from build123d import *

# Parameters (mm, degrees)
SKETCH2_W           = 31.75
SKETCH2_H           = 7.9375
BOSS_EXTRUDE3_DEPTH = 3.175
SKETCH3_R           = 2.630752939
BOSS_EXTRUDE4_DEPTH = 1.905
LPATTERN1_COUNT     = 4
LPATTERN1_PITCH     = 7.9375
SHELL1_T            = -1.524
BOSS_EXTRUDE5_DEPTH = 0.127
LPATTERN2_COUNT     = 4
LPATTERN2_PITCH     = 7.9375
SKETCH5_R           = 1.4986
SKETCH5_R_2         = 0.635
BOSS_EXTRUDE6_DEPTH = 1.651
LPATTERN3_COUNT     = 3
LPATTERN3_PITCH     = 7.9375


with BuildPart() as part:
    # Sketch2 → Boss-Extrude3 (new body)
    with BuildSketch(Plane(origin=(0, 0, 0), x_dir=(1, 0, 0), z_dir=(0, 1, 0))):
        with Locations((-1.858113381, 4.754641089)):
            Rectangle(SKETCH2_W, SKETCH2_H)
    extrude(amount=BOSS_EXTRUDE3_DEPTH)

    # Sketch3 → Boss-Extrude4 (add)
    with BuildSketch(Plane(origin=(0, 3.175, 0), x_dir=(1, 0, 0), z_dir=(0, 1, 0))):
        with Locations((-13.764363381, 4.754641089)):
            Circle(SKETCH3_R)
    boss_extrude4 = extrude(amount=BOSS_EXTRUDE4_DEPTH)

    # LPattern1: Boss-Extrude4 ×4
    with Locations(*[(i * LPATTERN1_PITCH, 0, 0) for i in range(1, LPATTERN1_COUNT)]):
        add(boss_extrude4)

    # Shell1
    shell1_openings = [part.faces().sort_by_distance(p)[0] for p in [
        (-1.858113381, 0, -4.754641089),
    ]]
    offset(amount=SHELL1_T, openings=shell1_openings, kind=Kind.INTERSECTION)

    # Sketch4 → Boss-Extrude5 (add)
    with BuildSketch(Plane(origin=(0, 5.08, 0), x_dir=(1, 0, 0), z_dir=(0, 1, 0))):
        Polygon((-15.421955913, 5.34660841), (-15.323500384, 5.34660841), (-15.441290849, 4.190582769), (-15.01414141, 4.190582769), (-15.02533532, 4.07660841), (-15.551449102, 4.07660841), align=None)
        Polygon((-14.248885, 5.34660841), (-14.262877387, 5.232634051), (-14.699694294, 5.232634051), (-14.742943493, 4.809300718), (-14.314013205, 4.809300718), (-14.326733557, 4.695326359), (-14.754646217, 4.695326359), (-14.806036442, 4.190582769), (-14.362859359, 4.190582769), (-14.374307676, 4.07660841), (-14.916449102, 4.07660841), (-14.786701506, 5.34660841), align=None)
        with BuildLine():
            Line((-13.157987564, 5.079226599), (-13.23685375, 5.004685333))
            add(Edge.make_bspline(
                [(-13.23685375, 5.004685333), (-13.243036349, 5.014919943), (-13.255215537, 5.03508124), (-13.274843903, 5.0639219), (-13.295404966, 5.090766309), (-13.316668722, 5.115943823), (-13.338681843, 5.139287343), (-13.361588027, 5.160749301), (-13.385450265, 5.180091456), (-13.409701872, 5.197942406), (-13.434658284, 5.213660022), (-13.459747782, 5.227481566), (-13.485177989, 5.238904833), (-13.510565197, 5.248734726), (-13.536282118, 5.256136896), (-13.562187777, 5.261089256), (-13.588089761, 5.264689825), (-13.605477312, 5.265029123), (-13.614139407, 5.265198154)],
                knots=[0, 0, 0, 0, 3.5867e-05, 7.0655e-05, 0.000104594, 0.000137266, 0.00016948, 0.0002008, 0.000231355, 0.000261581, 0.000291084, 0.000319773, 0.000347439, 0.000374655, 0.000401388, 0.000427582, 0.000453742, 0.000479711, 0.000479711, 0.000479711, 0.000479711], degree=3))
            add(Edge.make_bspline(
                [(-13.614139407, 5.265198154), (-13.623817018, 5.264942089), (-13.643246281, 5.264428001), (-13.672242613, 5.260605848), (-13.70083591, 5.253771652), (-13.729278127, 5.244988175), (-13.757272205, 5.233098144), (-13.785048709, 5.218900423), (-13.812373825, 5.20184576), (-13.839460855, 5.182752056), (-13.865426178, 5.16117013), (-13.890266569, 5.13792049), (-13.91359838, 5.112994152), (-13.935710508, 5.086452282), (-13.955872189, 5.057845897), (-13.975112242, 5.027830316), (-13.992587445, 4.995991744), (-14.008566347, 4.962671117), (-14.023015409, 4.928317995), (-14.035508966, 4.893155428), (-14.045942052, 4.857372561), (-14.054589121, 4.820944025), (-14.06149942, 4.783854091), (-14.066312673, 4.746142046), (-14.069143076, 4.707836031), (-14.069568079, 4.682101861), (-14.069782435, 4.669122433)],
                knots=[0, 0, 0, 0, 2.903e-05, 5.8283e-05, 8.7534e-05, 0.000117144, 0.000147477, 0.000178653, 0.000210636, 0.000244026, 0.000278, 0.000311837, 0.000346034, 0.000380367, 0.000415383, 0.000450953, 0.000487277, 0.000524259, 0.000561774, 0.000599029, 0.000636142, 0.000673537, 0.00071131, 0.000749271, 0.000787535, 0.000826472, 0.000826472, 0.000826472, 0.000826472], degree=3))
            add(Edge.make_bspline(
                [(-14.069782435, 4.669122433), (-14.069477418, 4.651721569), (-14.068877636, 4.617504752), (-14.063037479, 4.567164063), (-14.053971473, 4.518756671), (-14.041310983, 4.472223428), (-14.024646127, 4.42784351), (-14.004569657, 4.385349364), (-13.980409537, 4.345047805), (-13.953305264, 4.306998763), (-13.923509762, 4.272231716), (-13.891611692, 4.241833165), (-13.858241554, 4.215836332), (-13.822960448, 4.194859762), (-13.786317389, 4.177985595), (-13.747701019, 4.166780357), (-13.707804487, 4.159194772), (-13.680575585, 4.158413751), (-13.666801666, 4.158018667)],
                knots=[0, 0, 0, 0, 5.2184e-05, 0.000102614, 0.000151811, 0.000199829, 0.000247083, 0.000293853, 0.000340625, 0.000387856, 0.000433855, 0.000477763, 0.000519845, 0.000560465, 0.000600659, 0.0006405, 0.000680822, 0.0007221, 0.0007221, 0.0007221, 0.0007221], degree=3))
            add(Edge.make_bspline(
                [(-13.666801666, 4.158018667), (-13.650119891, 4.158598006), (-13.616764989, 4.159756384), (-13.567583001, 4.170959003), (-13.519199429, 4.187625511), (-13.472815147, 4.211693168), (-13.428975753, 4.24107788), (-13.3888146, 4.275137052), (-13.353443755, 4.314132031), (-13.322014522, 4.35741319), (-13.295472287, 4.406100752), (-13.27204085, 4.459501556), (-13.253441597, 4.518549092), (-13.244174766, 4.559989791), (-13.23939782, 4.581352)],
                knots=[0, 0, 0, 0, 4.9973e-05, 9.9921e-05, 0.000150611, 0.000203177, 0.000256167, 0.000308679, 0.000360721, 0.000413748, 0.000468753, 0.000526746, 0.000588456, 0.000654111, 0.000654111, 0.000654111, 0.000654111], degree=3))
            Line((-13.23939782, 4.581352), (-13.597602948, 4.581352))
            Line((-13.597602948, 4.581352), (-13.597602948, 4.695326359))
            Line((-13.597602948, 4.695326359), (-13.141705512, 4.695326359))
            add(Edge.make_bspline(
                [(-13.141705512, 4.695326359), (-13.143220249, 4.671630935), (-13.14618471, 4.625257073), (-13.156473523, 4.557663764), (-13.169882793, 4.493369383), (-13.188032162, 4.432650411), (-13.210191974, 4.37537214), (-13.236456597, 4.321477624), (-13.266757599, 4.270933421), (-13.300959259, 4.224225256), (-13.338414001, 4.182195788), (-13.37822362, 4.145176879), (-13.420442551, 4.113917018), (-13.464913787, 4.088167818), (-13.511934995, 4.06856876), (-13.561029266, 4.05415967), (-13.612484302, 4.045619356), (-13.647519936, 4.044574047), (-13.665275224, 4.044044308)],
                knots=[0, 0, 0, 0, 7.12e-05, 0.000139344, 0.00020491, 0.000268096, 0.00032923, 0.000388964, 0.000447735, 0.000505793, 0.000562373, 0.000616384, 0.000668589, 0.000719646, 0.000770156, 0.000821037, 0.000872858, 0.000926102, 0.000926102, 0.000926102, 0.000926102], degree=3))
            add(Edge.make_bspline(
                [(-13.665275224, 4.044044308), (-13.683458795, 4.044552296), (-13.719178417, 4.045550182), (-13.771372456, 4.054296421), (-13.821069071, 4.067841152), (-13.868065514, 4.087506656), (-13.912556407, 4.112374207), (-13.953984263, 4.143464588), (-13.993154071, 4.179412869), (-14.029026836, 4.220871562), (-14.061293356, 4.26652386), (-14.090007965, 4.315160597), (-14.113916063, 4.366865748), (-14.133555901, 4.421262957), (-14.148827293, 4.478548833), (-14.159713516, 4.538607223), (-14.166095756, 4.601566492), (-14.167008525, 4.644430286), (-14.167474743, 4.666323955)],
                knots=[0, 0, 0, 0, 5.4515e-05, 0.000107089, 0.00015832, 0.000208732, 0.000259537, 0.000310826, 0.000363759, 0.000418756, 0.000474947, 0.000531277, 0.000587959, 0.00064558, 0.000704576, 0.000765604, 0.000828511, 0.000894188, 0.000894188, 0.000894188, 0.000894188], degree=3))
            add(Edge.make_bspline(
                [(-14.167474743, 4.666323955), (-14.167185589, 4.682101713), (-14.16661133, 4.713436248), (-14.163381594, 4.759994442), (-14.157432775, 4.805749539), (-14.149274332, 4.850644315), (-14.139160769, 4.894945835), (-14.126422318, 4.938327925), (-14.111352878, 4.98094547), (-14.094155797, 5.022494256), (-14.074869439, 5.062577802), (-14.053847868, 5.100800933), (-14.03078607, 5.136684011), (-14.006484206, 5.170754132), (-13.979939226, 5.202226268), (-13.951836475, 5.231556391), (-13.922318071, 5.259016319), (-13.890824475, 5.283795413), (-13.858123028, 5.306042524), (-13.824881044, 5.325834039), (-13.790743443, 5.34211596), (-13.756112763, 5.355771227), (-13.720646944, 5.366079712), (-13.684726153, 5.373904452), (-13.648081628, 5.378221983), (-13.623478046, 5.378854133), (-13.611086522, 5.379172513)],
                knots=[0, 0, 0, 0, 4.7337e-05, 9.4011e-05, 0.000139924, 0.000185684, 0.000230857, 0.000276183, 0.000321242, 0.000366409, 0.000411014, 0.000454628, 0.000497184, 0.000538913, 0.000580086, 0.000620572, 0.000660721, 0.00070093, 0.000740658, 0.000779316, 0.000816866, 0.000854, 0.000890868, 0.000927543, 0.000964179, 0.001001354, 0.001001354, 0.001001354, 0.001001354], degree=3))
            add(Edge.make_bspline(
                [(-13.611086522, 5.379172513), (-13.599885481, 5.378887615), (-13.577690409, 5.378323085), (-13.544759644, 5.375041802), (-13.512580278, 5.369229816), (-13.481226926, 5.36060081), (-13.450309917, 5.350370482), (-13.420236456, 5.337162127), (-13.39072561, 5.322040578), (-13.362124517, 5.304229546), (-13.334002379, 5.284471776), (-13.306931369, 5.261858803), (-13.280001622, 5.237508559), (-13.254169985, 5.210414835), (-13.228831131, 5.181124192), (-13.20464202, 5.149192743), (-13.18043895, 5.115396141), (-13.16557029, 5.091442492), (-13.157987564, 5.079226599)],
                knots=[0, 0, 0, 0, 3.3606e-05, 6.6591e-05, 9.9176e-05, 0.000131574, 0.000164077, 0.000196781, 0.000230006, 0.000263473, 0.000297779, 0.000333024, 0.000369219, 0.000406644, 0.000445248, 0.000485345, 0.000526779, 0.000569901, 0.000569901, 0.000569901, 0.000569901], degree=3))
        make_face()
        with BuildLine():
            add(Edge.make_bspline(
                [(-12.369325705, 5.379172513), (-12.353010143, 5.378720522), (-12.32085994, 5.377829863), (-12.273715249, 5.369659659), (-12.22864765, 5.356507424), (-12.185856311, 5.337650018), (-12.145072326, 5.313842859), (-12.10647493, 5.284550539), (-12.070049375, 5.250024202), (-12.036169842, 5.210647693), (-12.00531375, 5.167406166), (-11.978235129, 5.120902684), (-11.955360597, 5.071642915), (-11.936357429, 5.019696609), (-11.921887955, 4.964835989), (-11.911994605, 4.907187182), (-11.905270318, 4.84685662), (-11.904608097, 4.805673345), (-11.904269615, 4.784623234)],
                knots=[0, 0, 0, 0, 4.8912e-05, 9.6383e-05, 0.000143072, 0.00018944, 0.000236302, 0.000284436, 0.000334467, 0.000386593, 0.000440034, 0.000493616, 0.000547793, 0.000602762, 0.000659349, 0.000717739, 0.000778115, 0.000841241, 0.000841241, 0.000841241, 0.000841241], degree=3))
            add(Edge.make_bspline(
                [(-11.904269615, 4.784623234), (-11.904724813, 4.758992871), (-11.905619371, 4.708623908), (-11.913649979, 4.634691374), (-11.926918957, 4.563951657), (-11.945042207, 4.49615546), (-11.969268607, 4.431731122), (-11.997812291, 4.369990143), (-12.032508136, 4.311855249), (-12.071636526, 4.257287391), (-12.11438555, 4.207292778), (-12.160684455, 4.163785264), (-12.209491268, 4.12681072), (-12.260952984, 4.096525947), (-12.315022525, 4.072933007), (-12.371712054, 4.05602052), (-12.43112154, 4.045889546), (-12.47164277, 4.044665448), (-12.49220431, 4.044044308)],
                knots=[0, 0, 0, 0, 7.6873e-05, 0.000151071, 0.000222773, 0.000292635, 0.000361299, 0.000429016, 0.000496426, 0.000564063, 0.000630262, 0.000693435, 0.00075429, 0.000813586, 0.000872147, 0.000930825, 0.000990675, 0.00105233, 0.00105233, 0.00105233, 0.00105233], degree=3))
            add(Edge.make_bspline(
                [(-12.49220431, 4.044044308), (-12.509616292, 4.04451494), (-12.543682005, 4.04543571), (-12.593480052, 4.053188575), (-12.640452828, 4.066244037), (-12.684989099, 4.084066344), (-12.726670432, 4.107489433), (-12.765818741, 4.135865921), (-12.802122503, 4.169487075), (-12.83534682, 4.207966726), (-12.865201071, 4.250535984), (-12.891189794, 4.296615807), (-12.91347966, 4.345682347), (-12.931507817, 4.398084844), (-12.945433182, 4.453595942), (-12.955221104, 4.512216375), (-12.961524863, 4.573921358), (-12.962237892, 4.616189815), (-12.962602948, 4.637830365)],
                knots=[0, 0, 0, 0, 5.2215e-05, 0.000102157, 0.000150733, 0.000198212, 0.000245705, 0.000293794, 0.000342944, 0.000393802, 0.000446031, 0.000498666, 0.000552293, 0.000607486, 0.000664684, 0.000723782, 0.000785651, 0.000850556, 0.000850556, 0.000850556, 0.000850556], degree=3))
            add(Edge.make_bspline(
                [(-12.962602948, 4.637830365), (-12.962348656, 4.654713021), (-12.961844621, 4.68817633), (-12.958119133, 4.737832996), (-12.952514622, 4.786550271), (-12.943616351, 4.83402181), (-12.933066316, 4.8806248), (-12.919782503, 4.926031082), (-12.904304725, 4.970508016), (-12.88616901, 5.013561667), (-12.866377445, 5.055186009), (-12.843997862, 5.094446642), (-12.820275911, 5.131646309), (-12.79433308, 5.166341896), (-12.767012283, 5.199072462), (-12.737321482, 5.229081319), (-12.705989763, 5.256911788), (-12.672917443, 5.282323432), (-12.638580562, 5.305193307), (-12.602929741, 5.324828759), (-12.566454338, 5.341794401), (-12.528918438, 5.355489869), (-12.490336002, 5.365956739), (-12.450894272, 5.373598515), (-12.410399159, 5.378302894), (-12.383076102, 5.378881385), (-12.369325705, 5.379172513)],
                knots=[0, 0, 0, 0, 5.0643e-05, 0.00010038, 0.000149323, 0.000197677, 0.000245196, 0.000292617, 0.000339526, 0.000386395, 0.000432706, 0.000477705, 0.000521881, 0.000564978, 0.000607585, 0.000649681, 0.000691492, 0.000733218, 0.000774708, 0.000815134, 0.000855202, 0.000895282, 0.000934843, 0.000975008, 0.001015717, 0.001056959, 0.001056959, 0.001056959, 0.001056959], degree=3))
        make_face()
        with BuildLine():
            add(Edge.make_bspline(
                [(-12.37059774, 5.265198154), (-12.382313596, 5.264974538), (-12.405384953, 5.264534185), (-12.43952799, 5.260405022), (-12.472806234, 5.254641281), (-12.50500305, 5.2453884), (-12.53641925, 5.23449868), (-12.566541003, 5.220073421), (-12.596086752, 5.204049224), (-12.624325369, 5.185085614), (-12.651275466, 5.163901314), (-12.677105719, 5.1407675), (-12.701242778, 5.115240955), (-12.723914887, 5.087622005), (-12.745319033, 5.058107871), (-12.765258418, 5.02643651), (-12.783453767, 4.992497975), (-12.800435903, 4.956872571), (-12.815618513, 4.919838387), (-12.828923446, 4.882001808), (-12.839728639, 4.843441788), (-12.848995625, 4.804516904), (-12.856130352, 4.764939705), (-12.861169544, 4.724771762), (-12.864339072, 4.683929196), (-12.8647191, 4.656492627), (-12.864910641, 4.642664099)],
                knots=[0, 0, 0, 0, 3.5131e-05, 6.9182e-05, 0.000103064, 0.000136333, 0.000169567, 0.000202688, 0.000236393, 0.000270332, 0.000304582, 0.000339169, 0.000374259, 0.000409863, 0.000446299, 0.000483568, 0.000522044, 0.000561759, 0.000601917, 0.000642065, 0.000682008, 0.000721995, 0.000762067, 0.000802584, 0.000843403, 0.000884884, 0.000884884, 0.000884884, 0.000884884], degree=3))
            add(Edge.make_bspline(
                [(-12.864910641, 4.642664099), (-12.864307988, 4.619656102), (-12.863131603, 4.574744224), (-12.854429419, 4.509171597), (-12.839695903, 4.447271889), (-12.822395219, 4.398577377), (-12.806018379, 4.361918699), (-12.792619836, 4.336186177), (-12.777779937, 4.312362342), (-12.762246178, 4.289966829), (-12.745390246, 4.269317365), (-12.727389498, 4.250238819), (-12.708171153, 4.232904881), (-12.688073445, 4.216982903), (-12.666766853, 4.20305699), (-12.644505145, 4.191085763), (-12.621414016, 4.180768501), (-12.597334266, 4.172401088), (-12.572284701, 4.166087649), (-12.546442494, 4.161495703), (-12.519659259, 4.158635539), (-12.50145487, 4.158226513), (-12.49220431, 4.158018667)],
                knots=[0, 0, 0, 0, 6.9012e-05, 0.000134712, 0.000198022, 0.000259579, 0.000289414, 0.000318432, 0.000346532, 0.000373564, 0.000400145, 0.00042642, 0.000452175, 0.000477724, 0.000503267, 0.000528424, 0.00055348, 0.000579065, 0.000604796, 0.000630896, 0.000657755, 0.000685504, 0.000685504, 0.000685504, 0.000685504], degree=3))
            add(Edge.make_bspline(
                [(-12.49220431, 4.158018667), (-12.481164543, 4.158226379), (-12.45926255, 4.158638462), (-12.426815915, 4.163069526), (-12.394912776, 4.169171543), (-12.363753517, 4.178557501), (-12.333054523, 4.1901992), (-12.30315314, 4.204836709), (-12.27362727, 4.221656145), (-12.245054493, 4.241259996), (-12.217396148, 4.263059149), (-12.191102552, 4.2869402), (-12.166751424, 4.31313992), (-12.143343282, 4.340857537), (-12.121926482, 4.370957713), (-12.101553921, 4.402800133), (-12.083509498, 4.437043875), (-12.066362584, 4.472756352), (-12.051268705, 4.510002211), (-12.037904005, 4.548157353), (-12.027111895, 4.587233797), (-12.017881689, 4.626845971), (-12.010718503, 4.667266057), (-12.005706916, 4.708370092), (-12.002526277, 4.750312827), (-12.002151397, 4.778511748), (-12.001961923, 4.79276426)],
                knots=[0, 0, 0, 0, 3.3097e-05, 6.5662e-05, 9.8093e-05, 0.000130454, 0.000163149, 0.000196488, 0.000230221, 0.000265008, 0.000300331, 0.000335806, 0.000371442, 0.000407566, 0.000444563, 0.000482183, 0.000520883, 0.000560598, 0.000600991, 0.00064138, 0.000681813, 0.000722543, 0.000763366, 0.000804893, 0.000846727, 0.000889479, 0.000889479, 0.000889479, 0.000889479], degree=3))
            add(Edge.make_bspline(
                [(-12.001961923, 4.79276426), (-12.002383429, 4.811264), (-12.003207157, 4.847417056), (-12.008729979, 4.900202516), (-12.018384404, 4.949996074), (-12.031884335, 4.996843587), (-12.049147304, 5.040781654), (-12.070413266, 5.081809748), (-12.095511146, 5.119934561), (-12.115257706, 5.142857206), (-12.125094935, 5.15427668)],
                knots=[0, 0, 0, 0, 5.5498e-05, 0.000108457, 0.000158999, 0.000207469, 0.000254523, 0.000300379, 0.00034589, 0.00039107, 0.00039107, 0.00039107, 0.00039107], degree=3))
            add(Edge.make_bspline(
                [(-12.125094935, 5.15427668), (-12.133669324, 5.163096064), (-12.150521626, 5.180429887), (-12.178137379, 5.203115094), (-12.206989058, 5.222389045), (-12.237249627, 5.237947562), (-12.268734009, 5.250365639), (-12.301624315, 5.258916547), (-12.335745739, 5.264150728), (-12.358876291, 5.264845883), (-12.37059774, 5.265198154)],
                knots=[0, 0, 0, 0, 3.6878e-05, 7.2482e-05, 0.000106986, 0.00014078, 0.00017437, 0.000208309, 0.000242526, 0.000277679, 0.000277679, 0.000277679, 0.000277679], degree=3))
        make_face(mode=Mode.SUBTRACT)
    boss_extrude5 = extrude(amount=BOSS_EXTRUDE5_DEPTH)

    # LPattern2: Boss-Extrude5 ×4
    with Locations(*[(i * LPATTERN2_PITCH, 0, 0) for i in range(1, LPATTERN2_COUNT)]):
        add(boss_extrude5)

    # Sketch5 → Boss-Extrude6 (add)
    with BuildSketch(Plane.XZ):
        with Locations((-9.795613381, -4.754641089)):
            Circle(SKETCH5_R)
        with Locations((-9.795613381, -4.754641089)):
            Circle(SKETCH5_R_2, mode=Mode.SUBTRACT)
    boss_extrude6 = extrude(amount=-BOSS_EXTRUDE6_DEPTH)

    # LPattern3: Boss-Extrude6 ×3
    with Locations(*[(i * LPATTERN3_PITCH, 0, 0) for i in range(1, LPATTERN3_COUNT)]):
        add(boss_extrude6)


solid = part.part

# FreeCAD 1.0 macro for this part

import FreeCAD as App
import Part
import Sketcher
Q = App.Units.Quantity


def faces_at(feature, points):
    """Names of the faces that lie closest to the given points."""
    faces = feature.Shape.Faces
    near = lambda p: min(range(len(faces)), key=lambda i: faces[i].distToShape(Part.Vertex(*p))[0])
    return sorted({f"Face{near(p) + 1}" for p in points})


def add_polygon(sketch, points):
    """Adds a closed chain of lines whose ends are joined by coincident constraints."""
    first, n = sketch.GeometryCount, len(points)
    for a, b in zip(points, points[1:] + points[:1]):
        sketch.addGeometry(Part.LineSegment(App.Vector(*a, 0), App.Vector(*b, 0)), False)
    for i in range(n):
        sketch.addConstraint(Sketcher.Constraint("Coincident", first + i, 2, first + (i + 1) % n, 1))

doc = App.newDocument("Part")
body = doc.addObject("PartDesign::Body", "Body")

sketch1 = doc.addObject("Sketcher::SketchObject", "Sketch")
body.addObject(sketch1)
sketch1.AttachmentSupport = (doc.XZ_Plane, [""])
sketch1.MapMode = "FlatFace"
add_polygon(sketch1, [(-17.733113, -8.723391), (-17.733113, -0.785891), (14.016887, -0.785891), (14.016887, -8.723391)])
sketch1.addConstraint(Sketcher.Constraint("Vertical", 0))
sketch1.addConstraint(Sketcher.Constraint("Horizontal", 1))
sketch1.addConstraint(Sketcher.Constraint("Vertical", 2))
sketch1.addConstraint(Sketcher.Constraint("Horizontal", 3))
sketch1.addConstraint(Sketcher.Constraint("DistanceX", 1, 1, 1, 2, Q("1.25 in")))
sketch1.addConstraint(Sketcher.Constraint("DistanceY", 0, 1, 0, 2, Q("0.3125 in")))
sketch1.addConstraint(Sketcher.Constraint("DistanceY", 0, 2, -1, 1, 0.785891))
sketch1.addConstraint(Sketcher.Constraint("DistanceX", 0, 2, -1, 1, 17.733113))
pad1 = doc.addObject("PartDesign::Pad", "Pad")
body.addObject(pad1)
pad1.Profile = sketch1
pad1.Length = Q("0.125 in")
pad1.Reversed = True

sketch2 = doc.addObject("Sketcher::SketchObject", "Sketch001")
body.addObject(sketch2)
sketch2.AttachmentSupport = (doc.XZ_Plane, [""])
sketch2.MapMode = "FlatFace"
sketch2.AttachmentOffset = App.Placement(App.Vector(0, 0, -0.125 * 25.4), App.Rotation())
sketch2.addGeometry(Part.Circle(App.Vector(-13.764363, -4.754641, 0), App.Vector(0, 0, 1), 2.630753), False)
sketch2.addConstraint(Sketcher.Constraint("Diameter", 0, 5.261506))
sketch2.addConstraint(Sketcher.Constraint("DistanceY", 0, 3, -1, 1, 4.754641))
sketch2.addConstraint(Sketcher.Constraint("DistanceX", 0, 3, -1, 1, 13.764363))
pad2 = doc.addObject("PartDesign::Pad", "Pad001")
body.addObject(pad2)
pad2.Profile = sketch2
pad2.Length = Q("0.075 in")
pad2.Reversed = True
doc.recompute()

linearpattern = doc.addObject("PartDesign::LinearPattern", "LinearPattern")
body.addObject(linearpattern)
linearpattern.Originals = [pad2]
linearpattern.Direction = (doc.X_Axis, [""])
linearpattern.Mode = "offset"
linearpattern.Offset = Q("0.3125 in")
linearpattern.Occurrences = 4
body.Tip = linearpattern
doc.recompute()

thickness = doc.addObject("PartDesign::Thickness", "Thickness")
body.addObject(thickness)
thickness.Base = (linearpattern, faces_at(linearpattern, [(-1.858, 0, -4.755)]))
thickness.Value = Q("0.06 in")
thickness.Reversed = True
thickness.Join = "Intersection"

sketch3 = doc.addObject("Sketcher::SketchObject", "Sketch002")
body.addObject(sketch3)
sketch3.AttachmentSupport = (doc.XZ_Plane, [""])
sketch3.MapMode = "FlatFace"
sketch3.AttachmentOffset = App.Placement(App.Vector(0, 0, -0.2 * 25.4), App.Rotation())
add_polygon(sketch3, [(-15.3235, -5.346608), (-15.421956, -5.346608), (-15.551449, -4.076608), (-15.025335, -4.076608), (-15.014141, -4.190583), (-15.441291, -4.190583)])
add_polygon(sketch3, [(-14.262877, -5.232634), (-14.248885, -5.346608), (-14.786702, -5.346608), (-14.916449, -4.076608), (-14.374308, -4.076608), (-14.362859, -4.190583), (-14.806036, -4.190583), (-14.754646, -4.695326), (-14.326734, -4.695326), (-14.314013, -4.809301), (-14.742943, -4.809301), (-14.699694, -5.232634)])
sketch3.addGeometry(Part.LineSegment(App.Vector(-13.236854, -5.004685, 0), App.Vector(-13.157988, -5.079227, 0)), False)
sketch3.addGeometry(Part.BSplineCurve([App.Vector(-13.611087, -5.379173, 0), App.Vector(-13.599885, -5.378888, 0), App.Vector(-13.57769, -5.378323, 0), App.Vector(-13.54476, -5.375042, 0), App.Vector(-13.51258, -5.36923, 0), App.Vector(-13.481227, -5.360601, 0), App.Vector(-13.45031, -5.35037, 0), App.Vector(-13.420236, -5.337162, 0), App.Vector(-13.390726, -5.322041, 0), App.Vector(-13.362125, -5.30423, 0), App.Vector(-13.334002, -5.284472, 0), App.Vector(-13.306931, -5.261859, 0), App.Vector(-13.280002, -5.237509, 0), App.Vector(-13.25417, -5.210415, 0), App.Vector(-13.228831, -5.181124, 0), App.Vector(-13.204642, -5.149193, 0), App.Vector(-13.180439, -5.115396, 0), App.Vector(-13.16557, -5.091442, 0), App.Vector(-13.157988, -5.079227, 0)], [4, 1, 1, 1, 1, 1, 1, 1, 1, 1, 1, 1, 1, 1, 1, 1, 4], [0, 0.000033606, 0.000066591, 0.000099176, 0.000131574, 0.000164077, 0.000196781, 0.000230006, 0.000263473, 0.000297779, 0.000333024, 0.000369219, 0.000406644, 0.000445248, 0.000485345, 0.000526779, 0.000569901], False, 3, [1, 1, 1, 1, 1, 1, 1, 1, 1, 1, 1, 1, 1, 1, 1, 1, 1, 1, 1], False), False)
sketch3.addGeometry(Part.BSplineCurve([App.Vector(-14.167475, -4.666324, 0), App.Vector(-14.167186, -4.682102, 0), App.Vector(-14.166611, -4.713436, 0), App.Vector(-14.163382, -4.759994, 0), App.Vector(-14.157433, -4.80575, 0), App.Vector(-14.149274, -4.850644, 0), App.Vector(-14.139161, -4.894946, 0), App.Vector(-14.126422, -4.938328, 0), App.Vector(-14.111353, -4.980945, 0), App.Vector(-14.094156, -5.022494, 0), App.Vector(-14.074869, -5.062578, 0), App.Vector(-14.053848, -5.100801, 0), App.Vector(-14.030786, -5.136684, 0), App.Vector(-14.006484, -5.170754, 0), App.Vector(-13.979939, -5.202226, 0), App.Vector(-13.951836, -5.231556, 0), App.Vector(-13.922318, -5.259016, 0), App.Vector(-13.890824, -5.283795, 0), App.Vector(-13.858123, -5.306043, 0), App.Vector(-13.824881, -5.325834, 0), App.Vector(-13.790743, -5.342116, 0), App.Vector(-13.756113, -5.355771, 0), App.Vector(-13.720647, -5.36608, 0), App.Vector(-13.684726, -5.373904, 0), App.Vector(-13.648082, -5.378222, 0), App.Vector(-13.623478, -5.378854, 0), App.Vector(-13.611087, -5.379173, 0)], [4, 1, 1, 1, 1, 1, 1, 1, 1, 1, 1, 1, 1, 1, 1, 1, 1, 1, 1, 1, 1, 1, 1, 1, 4], [0, 0.000047337, 0.000094011, 0.000139924, 0.000185684, 0.000230857, 0.000276183, 0.000321242, 0.000366409, 0.000411014, 0.000454628, 0.000497184, 0.000538913, 0.000580086, 0.000620572, 0.000660721, 0.00070093, 0.000740658, 0.000779316, 0.000816866, 0.000854, 0.000890868, 0.000927543, 0.000964179, 0.001001354], False, 3, [1, 1, 1, 1, 1, 1, 1, 1, 1, 1, 1, 1, 1, 1, 1, 1, 1, 1, 1, 1, 1, 1, 1, 1, 1, 1, 1], False), False)
sketch3.addGeometry(Part.BSplineCurve([App.Vector(-13.665275, -4.044044, 0), App.Vector(-13.683459, -4.044552, 0), App.Vector(-13.719178, -4.04555, 0), App.Vector(-13.771372, -4.054296, 0), App.Vector(-13.821069, -4.067841, 0), App.Vector(-13.868066, -4.087507, 0), App.Vector(-13.912556, -4.112374, 0), App.Vector(-13.953984, -4.143465, 0), App.Vector(-13.993154, -4.179413, 0), App.Vector(-14.029027, -4.220872, 0), App.Vector(-14.061293, -4.266524, 0), App.Vector(-14.090008, -4.315161, 0), App.Vector(-14.113916, -4.366866, 0), App.Vector(-14.133556, -4.421263, 0), App.Vector(-14.148827, -4.478549, 0), App.Vector(-14.159714, -4.538607, 0), App.Vector(-14.166096, -4.601566, 0), App.Vector(-14.167009, -4.64443, 0), App.Vector(-14.167475, -4.666324, 0)], [4, 1, 1, 1, 1, 1, 1, 1, 1, 1, 1, 1, 1, 1, 1, 1, 4], [0, 0.000054515, 0.000107089, 0.00015832, 0.000208732, 0.000259537, 0.000310826, 0.000363759, 0.000418756, 0.000474947, 0.000531277, 0.000587959, 0.00064558, 0.000704576, 0.000765604, 0.000828511, 0.000894188], False, 3, [1, 1, 1, 1, 1, 1, 1, 1, 1, 1, 1, 1, 1, 1, 1, 1, 1, 1, 1], False), False)
sketch3.addGeometry(Part.BSplineCurve([App.Vector(-13.141706, -4.695326, 0), App.Vector(-13.14322, -4.671631, 0), App.Vector(-13.146185, -4.625257, 0), App.Vector(-13.156474, -4.557664, 0), App.Vector(-13.169883, -4.493369, 0), App.Vector(-13.188032, -4.43265, 0), App.Vector(-13.210192, -4.375372, 0), App.Vector(-13.236457, -4.321478, 0), App.Vector(-13.266758, -4.270933, 0), App.Vector(-13.300959, -4.224225, 0), App.Vector(-13.338414, -4.182196, 0), App.Vector(-13.378224, -4.145177, 0), App.Vector(-13.420443, -4.113917, 0), App.Vector(-13.464914, -4.088168, 0), App.Vector(-13.511935, -4.068569, 0), App.Vector(-13.561029, -4.05416, 0), App.Vector(-13.612484, -4.045619, 0), App.Vector(-13.64752, -4.044574, 0), App.Vector(-13.665275, -4.044044, 0)], [4, 1, 1, 1, 1, 1, 1, 1, 1, 1, 1, 1, 1, 1, 1, 1, 4], [0, 0.0000712, 0.000139344, 0.00020491, 0.000268096, 0.00032923, 0.000388964, 0.000447735, 0.000505793, 0.000562373, 0.000616384, 0.000668589, 0.000719646, 0.000770156, 0.000821037, 0.000872858, 0.000926102], False, 3, [1, 1, 1, 1, 1, 1, 1, 1, 1, 1, 1, 1, 1, 1, 1, 1, 1, 1, 1], False), False)
sketch3.addGeometry(Part.LineSegment(App.Vector(-13.141706, -4.695326, 0), App.Vector(-13.597603, -4.695326, 0)), False)
sketch3.addGeometry(Part.LineSegment(App.Vector(-13.597603, -4.695326, 0), App.Vector(-13.597603, -4.581352, 0)), False)
sketch3.addGeometry(Part.LineSegment(App.Vector(-13.597603, -4.581352, 0), App.Vector(-13.239398, -4.581352, 0)), False)
sketch3.addGeometry(Part.BSplineCurve([App.Vector(-13.666802, -4.158019, 0), App.Vector(-13.65012, -4.158598, 0), App.Vector(-13.616765, -4.159756, 0), App.Vector(-13.567583, -4.170959, 0), App.Vector(-13.519199, -4.187626, 0), App.Vector(-13.472815, -4.211693, 0), App.Vector(-13.428976, -4.241078, 0), App.Vector(-13.388815, -4.275137, 0), App.Vector(-13.353444, -4.314132, 0), App.Vector(-13.322015, -4.357413, 0), App.Vector(-13.295472, -4.406101, 0), App.Vector(-13.272041, -4.459502, 0), App.Vector(-13.253442, -4.518549, 0), App.Vector(-13.244175, -4.55999, 0), App.Vector(-13.239398, -4.581352, 0)], [4, 1, 1, 1, 1, 1, 1, 1, 1, 1, 1, 1, 4], [0, 0.000049973, 0.000099921, 0.000150611, 0.000203177, 0.000256167, 0.000308679, 0.000360721, 0.000413748, 0.000468753, 0.000526746, 0.000588456, 0.000654111], False, 3, [1, 1, 1, 1, 1, 1, 1, 1, 1, 1, 1, 1, 1, 1, 1], False), False)
sketch3.addGeometry(Part.BSplineCurve([App.Vector(-14.069782, -4.669122, 0), App.Vector(-14.069477, -4.651722, 0), App.Vector(-14.068878, -4.617505, 0), App.Vector(-14.063037, -4.567164, 0), App.Vector(-14.053971, -4.518757, 0), App.Vector(-14.041311, -4.472223, 0), App.Vector(-14.024646, -4.427844, 0), App.Vector(-14.00457, -4.385349, 0), App.Vector(-13.98041, -4.345048, 0), App.Vector(-13.953305, -4.306999, 0), App.Vector(-13.92351, -4.272232, 0), App.Vector(-13.891612, -4.241833, 0), App.Vector(-13.858242, -4.215836, 0), App.Vector(-13.82296, -4.19486, 0), App.Vector(-13.786317, -4.177986, 0), App.Vector(-13.747701, -4.16678, 0), App.Vector(-13.707804, -4.159195, 0), App.Vector(-13.680576, -4.158414, 0), App.Vector(-13.666802, -4.158019, 0)], [4, 1, 1, 1, 1, 1, 1, 1, 1, 1, 1, 1, 1, 1, 1, 1, 4], [0, 0.000052184, 0.000102614, 0.000151811, 0.000199829, 0.000247083, 0.000293853, 0.000340625, 0.000387856, 0.000433855, 0.000477763, 0.000519845, 0.000560465, 0.000600659, 0.0006405, 0.000680822, 0.0007221], False, 3, [1, 1, 1, 1, 1, 1, 1, 1, 1, 1, 1, 1, 1, 1, 1, 1, 1, 1, 1], False), False)
sketch3.addGeometry(Part.BSplineCurve([App.Vector(-13.614139, -5.265198, 0), App.Vector(-13.623817, -5.264942, 0), App.Vector(-13.643246, -5.264428, 0), App.Vector(-13.672243, -5.260606, 0), App.Vector(-13.700836, -5.253772, 0), App.Vector(-13.729278, -5.244988, 0), App.Vector(-13.757272, -5.233098, 0), App.Vector(-13.785049, -5.2189, 0), App.Vector(-13.812374, -5.201846, 0), App.Vector(-13.839461, -5.182752, 0), App.Vector(-13.865426, -5.16117, 0), App.Vector(-13.890267, -5.13792, 0), App.Vector(-13.913598, -5.112994, 0), App.Vector(-13.935711, -5.086452, 0), App.Vector(-13.955872, -5.057846, 0), App.Vector(-13.975112, -5.02783, 0), App.Vector(-13.992587, -4.995992, 0), App.Vector(-14.008566, -4.962671, 0), App.Vector(-14.023015, -4.928318, 0), App.Vector(-14.035509, -4.893155, 0), App.Vector(-14.045942, -4.857373, 0), App.Vector(-14.054589, -4.820944, 0), App.Vector(-14.061499, -4.783854, 0), App.Vector(-14.066313, -4.746142, 0), App.Vector(-14.069143, -4.707836, 0), App.Vector(-14.069568, -4.682102, 0), App.Vector(-14.069782, -4.669122, 0)], [4, 1, 1, 1, 1, 1, 1, 1, 1, 1, 1, 1, 1, 1, 1, 1, 1, 1, 1, 1, 1, 1, 1, 1, 4], [0, 0.00002903, 0.000058283, 0.000087534, 0.000117144, 0.000147477, 0.000178653, 0.000210636, 0.000244026, 0.000278, 0.000311837, 0.000346034, 0.000380367, 0.000415383, 0.000450953, 0.000487277, 0.000524259, 0.000561774, 0.000599029, 0.000636142, 0.000673537, 0.00071131, 0.000749271, 0.000787535, 0.000826472], False, 3, [1, 1, 1, 1, 1, 1, 1, 1, 1, 1, 1, 1, 1, 1, 1, 1, 1, 1, 1, 1, 1, 1, 1, 1, 1, 1, 1], False), False)
sketch3.addGeometry(Part.BSplineCurve([App.Vector(-13.236854, -5.004685, 0), App.Vector(-13.243036, -5.01492, 0), App.Vector(-13.255216, -5.035081, 0), App.Vector(-13.274844, -5.063922, 0), App.Vector(-13.295405, -5.090766, 0), App.Vector(-13.316669, -5.115944, 0), App.Vector(-13.338682, -5.139287, 0), App.Vector(-13.361588, -5.160749, 0), App.Vector(-13.38545, -5.180091, 0), App.Vector(-13.409702, -5.197942, 0), App.Vector(-13.434658, -5.21366, 0), App.Vector(-13.459748, -5.227482, 0), App.Vector(-13.485178, -5.238905, 0), App.Vector(-13.510565, -5.248735, 0), App.Vector(-13.536282, -5.256137, 0), App.Vector(-13.562188, -5.261089, 0), App.Vector(-13.58809, -5.26469, 0), App.Vector(-13.605477, -5.265029, 0), App.Vector(-13.614139, -5.265198, 0)], [4, 1, 1, 1, 1, 1, 1, 1, 1, 1, 1, 1, 1, 1, 1, 1, 4], [0, 0.000035867, 0.000070655, 0.000104594, 0.000137266, 0.00016948, 0.0002008, 0.000231355, 0.000261581, 0.000291084, 0.000319773, 0.000347439, 0.000374655, 0.000401388, 0.000427582, 0.000453742, 0.000479711], False, 3, [1, 1, 1, 1, 1, 1, 1, 1, 1, 1, 1, 1, 1, 1, 1, 1, 1, 1, 1], False), False)
sketch3.addGeometry(Part.BSplineCurve([App.Vector(-12.369326, -5.379173, 0), App.Vector(-12.35301, -5.378721, 0), App.Vector(-12.32086, -5.37783, 0), App.Vector(-12.273715, -5.36966, 0), App.Vector(-12.228648, -5.356507, 0), App.Vector(-12.185856, -5.33765, 0), App.Vector(-12.145072, -5.313843, 0), App.Vector(-12.106475, -5.284551, 0), App.Vector(-12.070049, -5.250024, 0), App.Vector(-12.03617, -5.210648, 0), App.Vector(-12.005314, -5.167406, 0), App.Vector(-11.978235, -5.120903, 0), App.Vector(-11.955361, -5.071643, 0), App.Vector(-11.936357, -5.019697, 0), App.Vector(-11.921888, -4.964836, 0), App.Vector(-11.911995, -4.907187, 0), App.Vector(-11.90527, -4.846857, 0), App.Vector(-11.904608, -4.805673, 0), App.Vector(-11.90427, -4.784623, 0)], [4, 1, 1, 1, 1, 1, 1, 1, 1, 1, 1, 1, 1, 1, 1, 1, 4], [0, 0.000048912, 0.000096383, 0.000143072, 0.00018944, 0.000236302, 0.000284436, 0.000334467, 0.000386593, 0.000440034, 0.000493616, 0.000547793, 0.000602762, 0.000659349, 0.000717739, 0.000778115, 0.000841241], False, 3, [1, 1, 1, 1, 1, 1, 1, 1, 1, 1, 1, 1, 1, 1, 1, 1, 1, 1, 1], False), False)
sketch3.addGeometry(Part.BSplineCurve([App.Vector(-12.962603, -4.63783, 0), App.Vector(-12.962349, -4.654713, 0), App.Vector(-12.961845, -4.688176, 0), App.Vector(-12.958119, -4.737833, 0), App.Vector(-12.952515, -4.78655, 0), App.Vector(-12.943616, -4.834022, 0), App.Vector(-12.933066, -4.880625, 0), App.Vector(-12.919783, -4.926031, 0), App.Vector(-12.904305, -4.970508, 0), App.Vector(-12.886169, -5.013562, 0), App.Vector(-12.866377, -5.055186, 0), App.Vector(-12.843998, -5.094447, 0), App.Vector(-12.820276, -5.131646, 0), App.Vector(-12.794333, -5.166342, 0), App.Vector(-12.767012, -5.199072, 0), App.Vector(-12.737321, -5.229081, 0), App.Vector(-12.70599, -5.256912, 0), App.Vector(-12.672917, -5.282323, 0), App.Vector(-12.638581, -5.305193, 0), App.Vector(-12.60293, -5.324829, 0), App.Vector(-12.566454, -5.341794, 0), App.Vector(-12.528918, -5.35549, 0), App.Vector(-12.490336, -5.365957, 0), App.Vector(-12.450894, -5.373599, 0), App.Vector(-12.410399, -5.378303, 0), App.Vector(-12.383076, -5.378881, 0), App.Vector(-12.369326, -5.379173, 0)], [4, 1, 1, 1, 1, 1, 1, 1, 1, 1, 1, 1, 1, 1, 1, 1, 1, 1, 1, 1, 1, 1, 1, 1, 4], [0, 0.000050643, 0.00010038, 0.000149323, 0.000197677, 0.000245196, 0.000292617, 0.000339526, 0.000386395, 0.000432706, 0.000477705, 0.000521881, 0.000564978, 0.000607585, 0.000649681, 0.000691492, 0.000733218, 0.000774708, 0.000815134, 0.000855202, 0.000895282, 0.000934843, 0.000975008, 0.001015717, 0.001056959], False, 3, [1, 1, 1, 1, 1, 1, 1, 1, 1, 1, 1, 1, 1, 1, 1, 1, 1, 1, 1, 1, 1, 1, 1, 1, 1, 1, 1], False), False)
sketch3.addGeometry(Part.BSplineCurve([App.Vector(-12.492204, -4.044044, 0), App.Vector(-12.509616, -4.044515, 0), App.Vector(-12.543682, -4.045436, 0), App.Vector(-12.59348, -4.053189, 0), App.Vector(-12.640453, -4.066244, 0), App.Vector(-12.684989, -4.084066, 0), App.Vector(-12.72667, -4.107489, 0), App.Vector(-12.765819, -4.135866, 0), App.Vector(-12.802123, -4.169487, 0), App.Vector(-12.835347, -4.207967, 0), App.Vector(-12.865201, -4.250536, 0), App.Vector(-12.89119, -4.296616, 0), App.Vector(-12.91348, -4.345682, 0), App.Vector(-12.931508, -4.398085, 0), App.Vector(-12.945433, -4.453596, 0), App.Vector(-12.955221, -4.512216, 0), App.Vector(-12.961525, -4.573921, 0), App.Vector(-12.962238, -4.61619, 0), App.Vector(-12.962603, -4.63783, 0)], [4, 1, 1, 1, 1, 1, 1, 1, 1, 1, 1, 1, 1, 1, 1, 1, 4], [0, 0.000052215, 0.000102157, 0.000150733, 0.000198212, 0.000245705, 0.000293794, 0.000342944, 0.000393802, 0.000446031, 0.000498666, 0.000552293, 0.000607486, 0.000664684, 0.000723782, 0.000785651, 0.000850556], False, 3, [1, 1, 1, 1, 1, 1, 1, 1, 1, 1, 1, 1, 1, 1, 1, 1, 1, 1, 1], False), False)
sketch3.addGeometry(Part.BSplineCurve([App.Vector(-11.90427, -4.784623, 0), App.Vector(-11.904725, -4.758993, 0), App.Vector(-11.905619, -4.708624, 0), App.Vector(-11.91365, -4.634691, 0), App.Vector(-11.926919, -4.563952, 0), App.Vector(-11.945042, -4.496155, 0), App.Vector(-11.969269, -4.431731, 0), App.Vector(-11.997812, -4.36999, 0), App.Vector(-12.032508, -4.311855, 0), App.Vector(-12.071637, -4.257287, 0), App.Vector(-12.114386, -4.207293, 0), App.Vector(-12.160684, -4.163785, 0), App.Vector(-12.209491, -4.126811, 0), App.Vector(-12.260953, -4.096526, 0), App.Vector(-12.315023, -4.072933, 0), App.Vector(-12.371712, -4.056021, 0), App.Vector(-12.431122, -4.04589, 0), App.Vector(-12.471643, -4.044665, 0), App.Vector(-12.492204, -4.044044, 0)], [4, 1, 1, 1, 1, 1, 1, 1, 1, 1, 1, 1, 1, 1, 1, 1, 4], [0, 0.000076873, 0.000151071, 0.000222773, 0.000292635, 0.000361299, 0.000429016, 0.000496426, 0.000564063, 0.000630262, 0.000693435, 0.00075429, 0.000813586, 0.000872147, 0.000930825, 0.000990675, 0.00105233], False, 3, [1, 1, 1, 1, 1, 1, 1, 1, 1, 1, 1, 1, 1, 1, 1, 1, 1, 1, 1], False), False)
sketch3.addGeometry(Part.BSplineCurve([App.Vector(-12.125095, -5.154277, 0), App.Vector(-12.133669, -5.163096, 0), App.Vector(-12.150522, -5.18043, 0), App.Vector(-12.178137, -5.203115, 0), App.Vector(-12.206989, -5.222389, 0), App.Vector(-12.23725, -5.237948, 0), App.Vector(-12.268734, -5.250366, 0), App.Vector(-12.301624, -5.258917, 0), App.Vector(-12.335746, -5.264151, 0), App.Vector(-12.358876, -5.264846, 0), App.Vector(-12.370598, -5.265198, 0)], [4, 1, 1, 1, 1, 1, 1, 1, 4], [0, 0.000036878, 0.000072482, 0.000106986, 0.00014078, 0.00017437, 0.000208309, 0.000242526, 0.000277679], False, 3, [1, 1, 1, 1, 1, 1, 1, 1, 1, 1, 1], False), False)
sketch3.addGeometry(Part.BSplineCurve([App.Vector(-12.001962, -4.792764, 0), App.Vector(-12.002383, -4.811264, 0), App.Vector(-12.003207, -4.847417, 0), App.Vector(-12.00873, -4.900203, 0), App.Vector(-12.018384, -4.949996, 0), App.Vector(-12.031884, -4.996844, 0), App.Vector(-12.049147, -5.040782, 0), App.Vector(-12.070413, -5.08181, 0), App.Vector(-12.095511, -5.119935, 0), App.Vector(-12.115258, -5.142857, 0), App.Vector(-12.125095, -5.154277, 0)], [4, 1, 1, 1, 1, 1, 1, 1, 4], [0, 0.000055498, 0.000108457, 0.000158999, 0.000207469, 0.000254523, 0.000300379, 0.00034589, 0.00039107], False, 3, [1, 1, 1, 1, 1, 1, 1, 1, 1, 1, 1], False), False)
sketch3.addGeometry(Part.BSplineCurve([App.Vector(-12.492204, -4.158019, 0), App.Vector(-12.481165, -4.158226, 0), App.Vector(-12.459263, -4.158638, 0), App.Vector(-12.426816, -4.16307, 0), App.Vector(-12.394913, -4.169172, 0), App.Vector(-12.363754, -4.178558, 0), App.Vector(-12.333055, -4.190199, 0), App.Vector(-12.303153, -4.204837, 0), App.Vector(-12.273627, -4.221656, 0), App.Vector(-12.245054, -4.24126, 0), App.Vector(-12.217396, -4.263059, 0), App.Vector(-12.191103, -4.28694, 0), App.Vector(-12.166751, -4.31314, 0), App.Vector(-12.143343, -4.340858, 0), App.Vector(-12.121926, -4.370958, 0), App.Vector(-12.101554, -4.4028, 0), App.Vector(-12.083509, -4.437044, 0), App.Vector(-12.066363, -4.472756, 0), App.Vector(-12.051269, -4.510002, 0), App.Vector(-12.037904, -4.548157, 0), App.Vector(-12.027112, -4.587234, 0), App.Vector(-12.017882, -4.626846, 0), App.Vector(-12.010719, -4.667266, 0), App.Vector(-12.005707, -4.70837, 0), App.Vector(-12.002526, -4.750313, 0), App.Vector(-12.002151, -4.778512, 0), App.Vector(-12.001962, -4.792764, 0)], [4, 1, 1, 1, 1, 1, 1, 1, 1, 1, 1, 1, 1, 1, 1, 1, 1, 1, 1, 1, 1, 1, 1, 1, 4], [0, 0.000033097, 0.000065662, 0.000098093, 0.000130454, 0.000163149, 0.000196488, 0.000230221, 0.000265008, 0.000300331, 0.000335806, 0.000371442, 0.000407566, 0.000444563, 0.000482183, 0.000520883, 0.000560598, 0.000600991, 0.00064138, 0.000681813, 0.000722543, 0.000763366, 0.000804893, 0.000846727, 0.000889479], False, 3, [1, 1, 1, 1, 1, 1, 1, 1, 1, 1, 1, 1, 1, 1, 1, 1, 1, 1, 1, 1, 1, 1, 1, 1, 1, 1, 1], False), False)
sketch3.addGeometry(Part.BSplineCurve([App.Vector(-12.864911, -4.642664, 0), App.Vector(-12.864308, -4.619656, 0), App.Vector(-12.863132, -4.574744, 0), App.Vector(-12.854429, -4.509172, 0), App.Vector(-12.839696, -4.447272, 0), App.Vector(-12.822395, -4.398577, 0), App.Vector(-12.806018, -4.361919, 0), App.Vector(-12.79262, -4.336186, 0), App.Vector(-12.77778, -4.312362, 0), App.Vector(-12.762246, -4.289967, 0), App.Vector(-12.74539, -4.269317, 0), App.Vector(-12.727389, -4.250239, 0), App.Vector(-12.708171, -4.232905, 0), App.Vector(-12.688073, -4.216983, 0), App.Vector(-12.666767, -4.203057, 0), App.Vector(-12.644505, -4.191086, 0), App.Vector(-12.621414, -4.180769, 0), App.Vector(-12.597334, -4.172401, 0), App.Vector(-12.572285, -4.166088, 0), App.Vector(-12.546442, -4.161496, 0), App.Vector(-12.519659, -4.158636, 0), App.Vector(-12.501455, -4.158227, 0), App.Vector(-12.492204, -4.158019, 0)], [4, 1, 1, 1, 1, 1, 1, 1, 1, 1, 1, 1, 1, 1, 1, 1, 1, 1, 1, 1, 4], [0, 0.000069012, 0.000134712, 0.000198022, 0.000259579, 0.000289414, 0.000318432, 0.000346532, 0.000373564, 0.000400145, 0.00042642, 0.000452175, 0.000477724, 0.000503267, 0.000528424, 0.00055348, 0.000579065, 0.000604796, 0.000630896, 0.000657755, 0.000685504], False, 3, [1, 1, 1, 1, 1, 1, 1, 1, 1, 1, 1, 1, 1, 1, 1, 1, 1, 1, 1, 1, 1, 1, 1], False), False)
sketch3.addGeometry(Part.BSplineCurve([App.Vector(-12.370598, -5.265198, 0), App.Vector(-12.382314, -5.264975, 0), App.Vector(-12.405385, -5.264534, 0), App.Vector(-12.439528, -5.260405, 0), App.Vector(-12.472806, -5.254641, 0), App.Vector(-12.505003, -5.245388, 0), App.Vector(-12.536419, -5.234499, 0), App.Vector(-12.566541, -5.220073, 0), App.Vector(-12.596087, -5.204049, 0), App.Vector(-12.624325, -5.185086, 0), App.Vector(-12.651275, -5.163901, 0), App.Vector(-12.677106, -5.140767, 0), App.Vector(-12.701243, -5.115241, 0), App.Vector(-12.723915, -5.087622, 0), App.Vector(-12.745319, -5.058108, 0), App.Vector(-12.765258, -5.026437, 0), App.Vector(-12.783454, -4.992498, 0), App.Vector(-12.800436, -4.956873, 0), App.Vector(-12.815619, -4.919838, 0), App.Vector(-12.828923, -4.882002, 0), App.Vector(-12.839729, -4.843442, 0), App.Vector(-12.848996, -4.804517, 0), App.Vector(-12.85613, -4.76494, 0), App.Vector(-12.86117, -4.724772, 0), App.Vector(-12.864339, -4.683929, 0), App.Vector(-12.864719, -4.656493, 0), App.Vector(-12.864911, -4.642664, 0)], [4, 1, 1, 1, 1, 1, 1, 1, 1, 1, 1, 1, 1, 1, 1, 1, 1, 1, 1, 1, 1, 1, 1, 1, 4], [0, 0.000035131, 0.000069182, 0.000103064, 0.000136333, 0.000169567, 0.000202688, 0.000236393, 0.000270332, 0.000304582, 0.000339169, 0.000374259, 0.000409863, 0.000446299, 0.000483568, 0.000522044, 0.000561759, 0.000601917, 0.000642065, 0.000682008, 0.000721995, 0.000762067, 0.000802584, 0.000843403, 0.000884884], False, 3, [1, 1, 1, 1, 1, 1, 1, 1, 1, 1, 1, 1, 1, 1, 1, 1, 1, 1, 1, 1, 1, 1, 1, 1, 1, 1, 1], False), False)
sketch3.addConstraint(Sketcher.Constraint("Block", 19))
sketch3.addConstraint(Sketcher.Constraint("Block", 20))
sketch3.addConstraint(Sketcher.Constraint("Block", 21))
sketch3.addConstraint(Sketcher.Constraint("Block", 22))
sketch3.addConstraint(Sketcher.Constraint("Block", 26))
sketch3.addConstraint(Sketcher.Constraint("Block", 27))
sketch3.addConstraint(Sketcher.Constraint("Block", 28))
sketch3.addConstraint(Sketcher.Constraint("Block", 29))
sketch3.addConstraint(Sketcher.Constraint("Block", 30))
sketch3.addConstraint(Sketcher.Constraint("Block", 31))
sketch3.addConstraint(Sketcher.Constraint("Block", 32))
sketch3.addConstraint(Sketcher.Constraint("Block", 33))
sketch3.addConstraint(Sketcher.Constraint("Block", 34))
sketch3.addConstraint(Sketcher.Constraint("Block", 35))
sketch3.addConstraint(Sketcher.Constraint("Block", 36))
sketch3.addConstraint(Sketcher.Constraint("Block", 37))
sketch3.addConstraint(Sketcher.Constraint("Block", 38))
sketch3.addConstraint(Sketcher.Constraint("Coincident", 18, 2, 19, 2))
sketch3.addConstraint(Sketcher.Constraint("Coincident", 22, 1, 23, 1))
sketch3.addConstraint(Sketcher.Constraint("Coincident", 23, 2, 24, 1))
sketch3.addConstraint(Sketcher.Constraint("Coincident", 24, 2, 25, 1))
sketch3.addConstraint(Sketcher.Constraint("Coincident", 25, 2, 26, 2))
sketch3.addConstraint(Sketcher.Constraint("Coincident", 29, 1, 18, 1))
sketch3.addConstraint(Sketcher.Constraint("Horizontal", 0))
sketch3.addConstraint(Sketcher.Constraint("Horizontal", 2))
sketch3.addConstraint(Sketcher.Constraint("Horizontal", 4))
sketch3.addConstraint(Sketcher.Constraint("Horizontal", 7))
sketch3.addConstraint(Sketcher.Constraint("Horizontal", 9))
sketch3.addConstraint(Sketcher.Constraint("Horizontal", 11))
sketch3.addConstraint(Sketcher.Constraint("Horizontal", 13))
sketch3.addConstraint(Sketcher.Constraint("Horizontal", 15))
sketch3.addConstraint(Sketcher.Constraint("Horizontal", 17))
sketch3.addConstraint(Sketcher.Constraint("Horizontal", 23))
sketch3.addConstraint(Sketcher.Constraint("Vertical", 24))
sketch3.addConstraint(Sketcher.Constraint("Horizontal", 25))
sketch3.addConstraint(Sketcher.Constraint("Parallel", 8, 16))
sketch3.addConstraint(Sketcher.Constraint("Horizontal", 5, 2, 6, 2))
sketch3.addConstraint(Sketcher.Constraint("Horizontal", 2, 2, 8, 2))
sketch3.addConstraint(Sketcher.Constraint("Horizontal", 4, 2, 10, 2))
sketch3.addConstraint(Sketcher.Constraint("Horizontal", 13, 2, 23, 2))
sketch3.addConstraint(Sketcher.Constraint("DistanceY", 0, 2, 1, 2, Q("0.05 in")))
sketch3.addConstraint(Sketcher.Constraint("DistanceX", 1, 2, 8, 2, Q("0.025 in")))
sketch3.addConstraint(Sketcher.Constraint("DistanceX", 4, 2, 4, 1, 0.427149))
sketch3.addConstraint(Sketcher.Constraint("DistanceX", 9, 1, 9, 2, 0.542141))
sketch3.addConstraint(Sketcher.Constraint("DistanceX", 15, 2, 15, 1, 0.42893))
sketch3.addConstraint(Sketcher.Constraint("DistanceX", 5, 2, -1, 1, 15.3235))
sketch3.addConstraint(Sketcher.Constraint("DistanceX", 7, 2, -1, 1, 14.786702))
sketch3.addConstraint(Sketcher.Constraint("DistanceY", 14, 2, -1, 1, 4.809301))
sketch3.addConstraint(Sketcher.Constraint("DistanceX", 2, 2, 11, 2, 0.219299))
sketch3.addConstraint(Sketcher.Constraint("Distance", 5, 1.162011))
sketch3.addConstraint(Sketcher.Constraint("Distance", 6, 0.11483))
sketch3.addConstraint(Sketcher.Constraint("Distance", 8, 1.276611))
sketch3.addConstraint(Sketcher.Constraint("DistanceX", 0, 2, 0, 1, 0.098456))
sketch3.addConstraint(Sketcher.Constraint("DistanceX", 2, 1, 2, 2, 0.526114))
sketch3.addConstraint(Sketcher.Constraint("DistanceX", 7, 2, 7, 1, 0.537817))
sketch3.addConstraint(Sketcher.Constraint("DistanceX", 11, 2, 11, 1, 0.443177))
sketch3.addConstraint(Sketcher.Constraint("DistanceX", 13, 1, 13, 2, 0.427913))
sketch3.addConstraint(Sketcher.Constraint("DistanceX", 17, 1, 17, 2, 0.436817))
sketch3.addConstraint(Sketcher.Constraint("DistanceX", 23, 2, 23, 1, 0.455897))
sketch3.addConstraint(Sketcher.Constraint("DistanceY", 0, 2, -1, 1, 5.346608))
sketch3.addConstraint(Sketcher.Constraint("DistanceX", 3, 2, -1, 1, 15.014141))
sketch3.addConstraint(Sketcher.Constraint("DistanceX", 11, 2, 12, 2, 0.05139))
sketch3.addConstraint(Sketcher.Constraint("DistanceX", 13, 2, 14, 2, 0.01272))
pad3 = doc.addObject("PartDesign::Pad", "Pad002")
body.addObject(pad3)
pad3.Profile = sketch3
pad3.Length = Q("0.005 in")
pad3.Reversed = True
doc.recompute()

linearpattern2 = doc.addObject("PartDesign::LinearPattern", "LinearPattern001")
body.addObject(linearpattern2)
linearpattern2.Originals = [pad3]
linearpattern2.Direction = (doc.X_Axis, [""])
linearpattern2.Mode = "offset"
linearpattern2.Offset = Q("0.3125 in")
linearpattern2.Occurrences = 4
body.Tip = linearpattern2

sketch4 = doc.addObject("Sketcher::SketchObject", "Sketch003")
body.addObject(sketch4)
sketch4.AttachmentSupport = (doc.XZ_Plane, [""])
sketch4.MapMode = "FlatFace"
sketch4.addGeometry(Part.Circle(App.Vector(-9.795613, -4.754641, 0), App.Vector(0, 0, 1), 1.4986), False)
sketch4.addGeometry(Part.Circle(App.Vector(-9.795613, -4.754641, 0), App.Vector(0, 0, 1), 0.635), False)
sketch4.addConstraint(Sketcher.Constraint("Coincident", 1, 3, 0, 3))
sketch4.addConstraint(Sketcher.Constraint("Diameter", 1, Q("0.05 in")))
sketch4.addConstraint(Sketcher.Constraint("Diameter", 0, Q("0.118 in")))
sketch4.addConstraint(Sketcher.Constraint("DistanceY", 0, 3, -1, 1, 4.754641))
sketch4.addConstraint(Sketcher.Constraint("DistanceX", 0, 3, -1, 1, 9.795613))
pad4 = doc.addObject("PartDesign::Pad", "Pad003")
body.addObject(pad4)
pad4.Profile = sketch4
pad4.Length = Q("0.065 in")
pad4.Reversed = True
doc.recompute()

linearpattern3 = doc.addObject("PartDesign::LinearPattern", "LinearPattern002")
body.addObject(linearpattern3)
linearpattern3.Originals = [pad4]
linearpattern3.Direction = (doc.X_Axis, [""])
linearpattern3.Mode = "offset"
linearpattern3.Offset = Q("0.3125 in")
linearpattern3.Occurrences = 3
body.Tip = linearpattern3

doc.recompute()
